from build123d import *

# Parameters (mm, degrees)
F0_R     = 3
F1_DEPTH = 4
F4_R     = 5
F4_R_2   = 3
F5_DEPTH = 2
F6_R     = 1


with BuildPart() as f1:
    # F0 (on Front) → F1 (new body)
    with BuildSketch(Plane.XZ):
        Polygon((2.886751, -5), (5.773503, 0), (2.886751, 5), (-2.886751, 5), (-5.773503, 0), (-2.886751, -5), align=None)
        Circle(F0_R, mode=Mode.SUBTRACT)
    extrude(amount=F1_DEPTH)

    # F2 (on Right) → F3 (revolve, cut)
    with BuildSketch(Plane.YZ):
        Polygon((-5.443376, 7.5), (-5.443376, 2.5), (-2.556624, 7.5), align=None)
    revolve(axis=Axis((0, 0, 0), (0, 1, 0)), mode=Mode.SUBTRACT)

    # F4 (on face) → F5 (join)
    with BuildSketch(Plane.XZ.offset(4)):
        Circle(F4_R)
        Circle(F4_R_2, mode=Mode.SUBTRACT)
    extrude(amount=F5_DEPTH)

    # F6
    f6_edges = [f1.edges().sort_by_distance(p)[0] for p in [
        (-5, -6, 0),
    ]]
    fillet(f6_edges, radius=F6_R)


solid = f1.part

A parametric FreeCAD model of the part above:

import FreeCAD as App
import Part
import Sketcher
Q = App.Units.Quantity


def edges_at(feature, points):
    """Names of the edges that pass closest to the given points."""
    edges = feature.Shape.Edges
    near = lambda p: min(range(len(edges)), key=lambda i: edges[i].distToShape(Part.Vertex(*p))[0])
    return sorted({f"Edge{near(p) + 1}" for p in points})


def add_polygon(sketch, points):
    """Adds a closed chain of lines whose ends are joined by coincident constraints."""
    first, n = sketch.GeometryCount, len(points)
    for a, b in zip(points, points[1:] + points[:1]):
        sketch.addGeometry(Part.LineSegment(App.Vector(*a, 0), App.Vector(*b, 0)), False)
    for i in range(n):
        sketch.addConstraint(Sketcher.Constraint("Coincident", first + i, 2, first + (i + 1) % n, 1))

doc = App.newDocument("Part")
params = doc.addObject("Spreadsheet::Sheet", "Params")
for row, (alias, value) in enumerate([
    ("sketch1_diameter", "6 mm"),
    ("pad1_length", "4 mm"),
    ("sketch2_height", "5 mm"),
    ("groove_angle", "360 deg"),
    ("sketch3_diameter", "10 mm"),
    ("sketch3_diameter2", "6 mm"),
    ("pad2_length", "2 mm"),
    ("fillet_radius", "1 mm"),
], start=1):
    params.set(f"A{row}", alias)
    params.set(f"B{row}", "=" + value)
    params.setAlias(f"B{row}", alias)

body = doc.addObject("PartDesign::Body", "Body")

# Sketch on XZ plane
sketch1 = doc.addObject("Sketcher::SketchObject", "Sketch")
body.addObject(sketch1)
sketch1.AttachmentSupport = (doc.XZ_Plane, [""])
sketch1.MapMode = "FlatFace"
add_polygon(sketch1, [(2.9, -5), (5.8, 0), (2.9, 5), (-2.9, 5), (-5.8, 0), (-2.9, -5)])  # lines 0-5
sketch1.addGeometry(Part.Circle(App.Vector(0, 0, 0), App.Vector(0, 0, 1), 3), False)  # 6
sketch1.addConstraint([
    Sketcher.Constraint("Horizontal", 2),
    Sketcher.Constraint("Horizontal", 5),
    Sketcher.Constraint("Coincident", 6, 3, -1, 1),
    Sketcher.Constraint("Symmetric", 0, 2, 3, 2, -1, 1),
    Sketcher.Constraint("Symmetric", 1, 2, 4, 2, -1, 1),
    Sketcher.Constraint("PointOnObject", 0, 2, -1),
    Sketcher.Constraint("Parallel", 0, 3),
    Sketcher.Constraint("Vertical", 2, 2, 4, 2),
    Sketcher.Constraint("Diameter", 6, 6.0),
    Sketcher.Constraint("Angle", 0, Q("59.999994 deg")),
    Sketcher.Constraint("DistanceY", -1, 1, 1, 2, 5.0),
    Sketcher.Constraint("DistanceX", 2, 2, 2, 1, 5.773502),
])
sketch1.setExpression("Constraints[14]", "Params.sketch1_diameter")
pad1 = doc.addObject("PartDesign::Pad", "Pad")
body.addObject(pad1)
pad1.Profile = sketch1
pad1.setExpression("Length", "Params.pad1_length")

# Sketch on YZ plane
sketch2 = doc.addObject("Sketcher::SketchObject", "Sketch001")
body.addObject(sketch2)
sketch2.AttachmentSupport = (doc.YZ_Plane, [""])
sketch2.MapMode = "FlatFace"
add_polygon(sketch2, [(-5.4, 7.5), (-5.4, 2.5), (-2.6, 7.5)])  # lines 0-2
sketch2.addConstraint([
    Sketcher.Constraint("Vertical", 0),
    Sketcher.Constraint("Horizontal", 2),
    Sketcher.Constraint("DistanceY", 0, 2, 0, 1, 5.0),
    Sketcher.Constraint("Angle", 1, Q("59.999994 deg")),
    Sketcher.Constraint("DistanceY", -1, 1, 0, 2, 2.5),
    Sketcher.Constraint("DistanceX", 0, 2, -1, 1, 5.443376),
])
sketch2.setExpression("Constraints[5]", "Params.sketch2_height")
groove = doc.addObject("PartDesign::Groove", "Groove")
body.addObject(groove)
groove.Profile = sketch2
groove.ReferenceAxis = (sketch2, ["H_Axis"])
groove.setExpression("Angle", "Params.groove_angle")

# Sketch on XZ plane
sketch3 = doc.addObject("Sketcher::SketchObject", "Sketch002")
body.addObject(sketch3)
sketch3.AttachmentSupport = (doc.XZ_Plane, [""])
sketch3.MapMode = "FlatFace"
sketch3.AttachmentOffset = App.Placement(App.Vector(0, 0, 4), App.Rotation())
sketch3.addGeometry([
    Part.Circle(App.Vector(0, 0, 0), App.Vector(0, 0, 1), 5),
    Part.Circle(App.Vector(0, 0, 0), App.Vector(0, 0, 1), 3),
], False)
sketch3.addConstraint([
    Sketcher.Constraint("Coincident", 0, 3, -1, 1),
    Sketcher.Constraint("Coincident", 1, 3, -1, 1),
    Sketcher.Constraint("Diameter", 0, 10.0),
    Sketcher.Constraint("Diameter", 1, 6.0),
])
sketch3.setExpression("Constraints[2]", "Params.sketch3_diameter")
sketch3.setExpression("Constraints[3]", "Params.sketch3_diameter2")
pad2 = doc.addObject("PartDesign::Pad", "Pad001")
body.addObject(pad2)
pad2.Profile = sketch3
pad2.setExpression("Length", "Params.pad2_length")
doc.recompute()

fillet = doc.addObject("PartDesign::Fillet", "Fillet")
body.addObject(fillet)
fillet.Base = (pad2, edges_at(pad2, [(-5, -6, 0)]))
fillet.setExpression("Radius", "Params.fillet_radius")

doc.recompute()
